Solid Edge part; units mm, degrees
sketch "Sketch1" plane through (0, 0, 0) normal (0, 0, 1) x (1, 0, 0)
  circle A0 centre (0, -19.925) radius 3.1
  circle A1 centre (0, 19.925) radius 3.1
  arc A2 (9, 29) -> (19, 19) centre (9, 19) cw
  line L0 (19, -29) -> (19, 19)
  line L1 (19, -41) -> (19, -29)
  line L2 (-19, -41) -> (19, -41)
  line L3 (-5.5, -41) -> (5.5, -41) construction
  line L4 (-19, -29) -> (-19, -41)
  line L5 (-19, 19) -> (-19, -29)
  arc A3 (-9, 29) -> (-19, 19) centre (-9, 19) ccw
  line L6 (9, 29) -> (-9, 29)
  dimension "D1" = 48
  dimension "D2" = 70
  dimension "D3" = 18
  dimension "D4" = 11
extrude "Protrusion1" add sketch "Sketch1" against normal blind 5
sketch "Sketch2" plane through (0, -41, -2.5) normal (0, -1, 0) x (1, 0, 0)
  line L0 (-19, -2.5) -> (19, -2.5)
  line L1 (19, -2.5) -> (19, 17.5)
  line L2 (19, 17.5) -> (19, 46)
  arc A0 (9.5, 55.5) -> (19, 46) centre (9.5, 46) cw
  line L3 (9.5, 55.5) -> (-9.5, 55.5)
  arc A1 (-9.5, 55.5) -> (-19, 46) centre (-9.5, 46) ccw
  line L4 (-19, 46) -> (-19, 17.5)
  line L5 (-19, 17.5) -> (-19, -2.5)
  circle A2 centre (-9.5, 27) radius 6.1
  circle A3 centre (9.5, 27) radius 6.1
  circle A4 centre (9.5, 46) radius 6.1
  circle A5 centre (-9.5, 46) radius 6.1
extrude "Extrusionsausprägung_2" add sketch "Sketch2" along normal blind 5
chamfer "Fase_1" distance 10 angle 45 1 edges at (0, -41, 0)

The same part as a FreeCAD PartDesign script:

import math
import FreeCAD as App
import Part
import Sketcher

V = App.Vector


def edges_at(feature, points):
    """Names of the edges that pass closest to the given points."""
    edges = feature.Shape.Edges
    near = lambda p: min(range(len(edges)), key=lambda i: edges[i].distToShape(Part.Vertex(*p))[0])
    return sorted({f"Edge{near(p) + 1}" for p in points})

doc = App.newDocument("Part")
body = doc.addObject("PartDesign::Body", "Body")

sketch1 = body.newObject("Sketcher::SketchObject", "Sketch")
sketch1.AttachmentSupport = (doc.getObject("XY_Plane"), [""])
sketch1.MapMode = "FlatFace"
sketch1.addGeometry([
    Part.ArcOfCircle(Part.Circle(V(9, 19, 0), V(0, 0, 1), 10), math.radians(0), math.radians(90)),
    Part.LineSegment(V(9, 29, 0), V(-9, 29, 0)),
    Part.ArcOfCircle(Part.Circle(V(-9, 19, 0), V(0, 0, 1), 10), math.radians(90), math.radians(180)),
    Part.LineSegment(V(-19, 19, 0), V(-19, -41, 0)),
    Part.LineSegment(V(-19, -41, 0), V(19, -41, 0)),
    Part.LineSegment(V(19, -41, 0), V(19, 19, 0)),
    Part.Circle(V(0, -19.9, 0), V(0, 0, 1), 3.1),
    Part.Circle(V(0, 19.9, 0), V(0, 0, 1), 3.1),
], False)
sketch1.addConstraint([
    Sketcher.Constraint("Tangent", 0, 2, 1, 1),
    Sketcher.Constraint("Tangent", 1, 2, 2, 1),
    Sketcher.Constraint("Tangent", 2, 2, 3, 1),
    Sketcher.Constraint("Coincident", 3, 2, 4, 1),
    Sketcher.Constraint("Coincident", 4, 2, 5, 1),
    Sketcher.Constraint("Tangent", 5, 2, 0, 1),
    Sketcher.Constraint("Horizontal", 1),
    Sketcher.Constraint("Vertical", 3),
    Sketcher.Constraint("Horizontal", 4),
    Sketcher.Constraint("Vertical", 5),
    Sketcher.Constraint("Equal", 0, 2),
    Sketcher.Constraint("Equal", 6, 7),
    Sketcher.Constraint("Symmetric", 6, 3, 7, 3, -1, 1),
    Sketcher.Constraint("PointOnObject", 6, 3, -2),
    Sketcher.Constraint("Radius", 0, 10.0),
    Sketcher.Constraint("Diameter", 6, 6.2),
    Sketcher.Constraint("DistanceX", 1, 2, 1, 1, 18.0),
    Sketcher.Constraint("DistanceY", 3, 2, 3, 1, 60.0),
    Sketcher.Constraint("DistanceX", -1, 1, 0, 3, 9.0),
    Sketcher.Constraint("DistanceY", -1, 1, 0, 3, 19.0),
    Sketcher.Constraint("DistanceY", 6, 3, 7, 3, 39.85),
])
pad1 = body.newObject("PartDesign::Pad", "Pad")
pad1.Profile = sketch1
pad1.Length = 5
pad1.Reversed = True

sketch2 = body.newObject("Sketcher::SketchObject", "Sketch001")
sketch2.AttachmentSupport = (doc.getObject("XZ_Plane"), [""])
sketch2.MapMode = "FlatFace"
sketch2.AttachmentOffset = App.Placement(V(0, 0, 41), App.Rotation())
sketch2.addGeometry([
    Part.LineSegment(V(-19, 44, 0), V(-19, -5, 0)),
    Part.LineSegment(V(-19, -5, 0), V(19, -5, 0)),
    Part.LineSegment(V(19, -5, 0), V(19, 44, 0)),
    Part.ArcOfCircle(Part.Circle(V(10, 44, 0), V(0, 0, 1), 10), math.radians(0), math.radians(90)),
    Part.LineSegment(V(10, 53, 0), V(-10, 53, 0)),
    Part.ArcOfCircle(Part.Circle(V(-10, 44, 0), V(0, 0, 1), 10), math.radians(90), math.radians(180)),
    Part.Circle(V(-10, 24, 0), V(0, 0, 1), 6),
    Part.Circle(V(-10, 44, 0), V(0, 0, 1), 6),
    Part.Circle(V(10, 24, 0), V(0, 0, 1), 6),
    Part.Circle(V(10, 44, 0), V(0, 0, 1), 6),
], False)
sketch2.addConstraint([
    Sketcher.Constraint("Coincident", 0, 2, 1, 1),
    Sketcher.Constraint("Coincident", 1, 2, 2, 1),
    Sketcher.Constraint("Tangent", 2, 2, 3, 1),
    Sketcher.Constraint("Tangent", 3, 2, 4, 1),
    Sketcher.Constraint("Tangent", 4, 2, 5, 1),
    Sketcher.Constraint("Tangent", 5, 2, 0, 1),
    Sketcher.Constraint("Vertical", 0),
    Sketcher.Constraint("Horizontal", 1),
    Sketcher.Constraint("Vertical", 2),
    Sketcher.Constraint("Horizontal", 4),
    Sketcher.Constraint("Coincident", 7, 3, 5, 3),
    Sketcher.Constraint("Coincident", 9, 3, 3, 3),
    Sketcher.Constraint("Equal", 3, 5),
    Sketcher.Constraint("Equal", 6, 7),
    Sketcher.Constraint("Equal", 7, 8),
    Sketcher.Constraint("Equal", 8, 9),
    Sketcher.Constraint("Symmetric", 6, 3, 8, 3, -2),
    Sketcher.Constraint("Vertical", 5, 3, 6, 3),
    Sketcher.Constraint("Vertical", 3, 3, 8, 3),
    Sketcher.Constraint("Diameter", 6, 12.2),
    Sketcher.Constraint("Radius", 3, 9.5),
    Sketcher.Constraint("DistanceX", 1, 1, 1, 2, 38.0),
    Sketcher.Constraint("DistanceY", 0, 2, 0, 1, 48.5),
    Sketcher.Constraint("DistanceY", 0, 2, -1, 1, 5.0),
    Sketcher.Constraint("DistanceY", 6, 3, 5, 3, 19.0),
])
pad2 = body.newObject("PartDesign::Pad", "Pad001")
pad2.Profile = sketch2
pad2.Length = 5
doc.recompute()

chamfer = body.newObject("PartDesign::Chamfer", "Chamfer")
chamfer.Base = (pad2, edges_at(pad2, [(0, -41, 0)]))
chamfer.Size = 10

doc.recompute()
